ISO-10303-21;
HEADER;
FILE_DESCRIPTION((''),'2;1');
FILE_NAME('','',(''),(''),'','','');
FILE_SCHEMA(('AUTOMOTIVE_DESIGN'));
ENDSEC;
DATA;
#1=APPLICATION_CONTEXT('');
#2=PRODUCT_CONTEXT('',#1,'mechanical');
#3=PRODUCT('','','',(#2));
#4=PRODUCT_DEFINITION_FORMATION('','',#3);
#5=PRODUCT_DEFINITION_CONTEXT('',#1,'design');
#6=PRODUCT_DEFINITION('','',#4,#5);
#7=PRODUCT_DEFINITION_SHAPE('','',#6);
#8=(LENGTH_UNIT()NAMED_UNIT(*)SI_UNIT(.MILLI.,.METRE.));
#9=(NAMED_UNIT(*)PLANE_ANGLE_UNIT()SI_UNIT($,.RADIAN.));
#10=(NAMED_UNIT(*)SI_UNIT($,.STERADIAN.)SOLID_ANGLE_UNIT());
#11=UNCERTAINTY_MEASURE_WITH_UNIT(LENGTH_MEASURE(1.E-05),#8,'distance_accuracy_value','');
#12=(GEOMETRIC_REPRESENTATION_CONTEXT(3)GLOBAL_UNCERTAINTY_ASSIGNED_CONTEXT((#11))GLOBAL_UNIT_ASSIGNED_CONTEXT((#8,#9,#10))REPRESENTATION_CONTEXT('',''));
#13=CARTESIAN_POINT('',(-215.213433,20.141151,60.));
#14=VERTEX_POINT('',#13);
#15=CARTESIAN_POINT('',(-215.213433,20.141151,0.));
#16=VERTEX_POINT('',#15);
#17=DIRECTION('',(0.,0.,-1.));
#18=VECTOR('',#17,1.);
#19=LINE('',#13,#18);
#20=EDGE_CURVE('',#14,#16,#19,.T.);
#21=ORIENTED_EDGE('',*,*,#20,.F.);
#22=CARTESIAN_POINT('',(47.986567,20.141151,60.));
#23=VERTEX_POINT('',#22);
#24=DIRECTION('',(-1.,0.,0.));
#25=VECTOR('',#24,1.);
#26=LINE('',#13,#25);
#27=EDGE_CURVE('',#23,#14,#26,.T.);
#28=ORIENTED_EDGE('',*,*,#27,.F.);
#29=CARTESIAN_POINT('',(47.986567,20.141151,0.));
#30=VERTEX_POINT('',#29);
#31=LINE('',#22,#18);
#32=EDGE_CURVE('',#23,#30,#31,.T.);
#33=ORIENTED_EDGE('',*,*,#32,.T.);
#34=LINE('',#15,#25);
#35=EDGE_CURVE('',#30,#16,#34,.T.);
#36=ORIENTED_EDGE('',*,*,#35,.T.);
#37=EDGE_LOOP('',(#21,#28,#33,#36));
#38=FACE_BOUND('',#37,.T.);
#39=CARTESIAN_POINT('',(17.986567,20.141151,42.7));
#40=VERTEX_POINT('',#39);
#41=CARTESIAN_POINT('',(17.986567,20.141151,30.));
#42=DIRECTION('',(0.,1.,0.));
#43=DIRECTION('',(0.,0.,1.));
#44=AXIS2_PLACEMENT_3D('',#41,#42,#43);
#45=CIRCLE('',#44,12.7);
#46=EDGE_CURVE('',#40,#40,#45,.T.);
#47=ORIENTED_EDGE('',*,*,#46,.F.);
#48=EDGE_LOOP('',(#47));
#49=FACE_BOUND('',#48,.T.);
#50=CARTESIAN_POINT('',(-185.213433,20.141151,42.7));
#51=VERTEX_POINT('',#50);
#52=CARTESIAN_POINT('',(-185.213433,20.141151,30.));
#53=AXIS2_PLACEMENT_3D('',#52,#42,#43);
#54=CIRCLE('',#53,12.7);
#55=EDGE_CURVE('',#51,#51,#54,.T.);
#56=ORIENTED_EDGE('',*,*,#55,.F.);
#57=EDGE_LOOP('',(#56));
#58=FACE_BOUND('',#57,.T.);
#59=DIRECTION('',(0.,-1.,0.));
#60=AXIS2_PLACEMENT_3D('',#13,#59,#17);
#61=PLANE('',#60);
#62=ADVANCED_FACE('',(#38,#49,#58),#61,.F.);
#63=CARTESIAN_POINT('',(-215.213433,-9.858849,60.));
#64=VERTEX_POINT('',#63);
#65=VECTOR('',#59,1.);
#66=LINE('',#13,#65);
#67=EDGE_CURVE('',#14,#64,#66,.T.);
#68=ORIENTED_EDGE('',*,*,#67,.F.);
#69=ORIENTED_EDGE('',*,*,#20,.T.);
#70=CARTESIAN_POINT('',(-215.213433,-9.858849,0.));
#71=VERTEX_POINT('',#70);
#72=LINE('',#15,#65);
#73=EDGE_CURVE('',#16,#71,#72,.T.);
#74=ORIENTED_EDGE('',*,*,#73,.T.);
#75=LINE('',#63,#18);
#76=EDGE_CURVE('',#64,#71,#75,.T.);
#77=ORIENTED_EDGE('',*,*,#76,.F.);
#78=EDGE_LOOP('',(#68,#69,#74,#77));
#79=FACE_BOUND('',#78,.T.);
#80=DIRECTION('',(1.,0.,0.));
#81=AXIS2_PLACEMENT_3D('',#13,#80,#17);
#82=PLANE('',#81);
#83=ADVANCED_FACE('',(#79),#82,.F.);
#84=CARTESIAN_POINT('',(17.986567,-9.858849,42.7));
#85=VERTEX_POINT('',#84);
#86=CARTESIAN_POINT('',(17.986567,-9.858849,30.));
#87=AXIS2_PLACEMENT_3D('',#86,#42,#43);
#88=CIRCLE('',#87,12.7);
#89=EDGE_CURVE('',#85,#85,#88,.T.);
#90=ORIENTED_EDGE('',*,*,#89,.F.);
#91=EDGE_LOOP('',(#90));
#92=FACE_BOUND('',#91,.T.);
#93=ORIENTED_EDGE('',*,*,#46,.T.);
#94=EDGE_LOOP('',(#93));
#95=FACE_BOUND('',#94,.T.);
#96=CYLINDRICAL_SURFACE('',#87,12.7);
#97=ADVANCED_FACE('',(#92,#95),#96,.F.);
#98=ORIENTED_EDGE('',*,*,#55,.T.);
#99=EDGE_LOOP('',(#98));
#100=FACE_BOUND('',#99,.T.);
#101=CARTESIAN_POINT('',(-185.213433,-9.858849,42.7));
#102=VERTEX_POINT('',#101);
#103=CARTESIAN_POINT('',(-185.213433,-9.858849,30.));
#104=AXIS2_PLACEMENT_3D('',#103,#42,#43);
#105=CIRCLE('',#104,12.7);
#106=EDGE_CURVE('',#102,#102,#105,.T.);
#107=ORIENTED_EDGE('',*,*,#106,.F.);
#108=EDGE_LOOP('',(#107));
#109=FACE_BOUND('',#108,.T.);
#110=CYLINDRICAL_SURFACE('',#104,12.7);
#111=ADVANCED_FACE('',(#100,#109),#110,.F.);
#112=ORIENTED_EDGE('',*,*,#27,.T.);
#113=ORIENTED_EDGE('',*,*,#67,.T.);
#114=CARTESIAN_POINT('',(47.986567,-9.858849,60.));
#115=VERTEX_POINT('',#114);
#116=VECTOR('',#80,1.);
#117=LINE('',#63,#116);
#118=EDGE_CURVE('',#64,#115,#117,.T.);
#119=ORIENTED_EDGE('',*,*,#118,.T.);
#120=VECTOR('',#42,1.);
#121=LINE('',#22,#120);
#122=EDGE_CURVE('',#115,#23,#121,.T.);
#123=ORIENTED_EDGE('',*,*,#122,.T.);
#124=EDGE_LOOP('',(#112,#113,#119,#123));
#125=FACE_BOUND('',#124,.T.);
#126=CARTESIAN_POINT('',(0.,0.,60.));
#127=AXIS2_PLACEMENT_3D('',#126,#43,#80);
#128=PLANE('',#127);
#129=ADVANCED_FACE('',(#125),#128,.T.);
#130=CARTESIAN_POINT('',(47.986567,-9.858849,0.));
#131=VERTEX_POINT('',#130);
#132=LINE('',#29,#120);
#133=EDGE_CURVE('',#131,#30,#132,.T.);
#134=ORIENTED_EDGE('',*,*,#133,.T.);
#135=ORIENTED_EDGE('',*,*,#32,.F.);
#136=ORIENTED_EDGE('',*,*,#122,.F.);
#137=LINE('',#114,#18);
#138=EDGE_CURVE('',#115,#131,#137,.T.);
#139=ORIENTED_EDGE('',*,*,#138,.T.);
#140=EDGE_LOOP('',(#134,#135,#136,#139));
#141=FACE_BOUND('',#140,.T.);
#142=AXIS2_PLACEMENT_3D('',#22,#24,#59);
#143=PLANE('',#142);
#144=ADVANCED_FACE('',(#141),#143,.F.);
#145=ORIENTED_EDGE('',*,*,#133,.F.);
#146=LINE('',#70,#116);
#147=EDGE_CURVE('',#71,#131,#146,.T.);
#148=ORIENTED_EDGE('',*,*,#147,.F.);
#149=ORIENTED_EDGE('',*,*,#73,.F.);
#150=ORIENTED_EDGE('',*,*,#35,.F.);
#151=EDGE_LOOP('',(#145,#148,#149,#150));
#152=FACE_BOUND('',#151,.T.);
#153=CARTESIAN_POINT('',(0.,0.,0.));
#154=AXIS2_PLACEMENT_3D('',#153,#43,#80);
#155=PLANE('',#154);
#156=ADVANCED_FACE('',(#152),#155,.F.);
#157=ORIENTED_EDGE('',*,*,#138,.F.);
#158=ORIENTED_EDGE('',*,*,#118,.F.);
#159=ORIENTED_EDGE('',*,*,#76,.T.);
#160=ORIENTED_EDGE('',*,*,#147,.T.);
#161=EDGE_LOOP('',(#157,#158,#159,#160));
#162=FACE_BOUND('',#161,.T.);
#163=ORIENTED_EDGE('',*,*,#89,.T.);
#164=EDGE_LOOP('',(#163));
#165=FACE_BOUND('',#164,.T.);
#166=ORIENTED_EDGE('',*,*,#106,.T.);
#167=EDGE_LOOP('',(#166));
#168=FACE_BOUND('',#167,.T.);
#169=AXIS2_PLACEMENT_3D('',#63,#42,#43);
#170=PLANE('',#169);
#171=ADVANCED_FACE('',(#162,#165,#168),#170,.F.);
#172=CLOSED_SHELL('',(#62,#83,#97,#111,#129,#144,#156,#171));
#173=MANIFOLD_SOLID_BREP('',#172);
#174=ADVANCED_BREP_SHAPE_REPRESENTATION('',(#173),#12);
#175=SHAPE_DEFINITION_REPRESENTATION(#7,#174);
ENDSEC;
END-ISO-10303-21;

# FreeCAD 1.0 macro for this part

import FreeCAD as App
import Part
import Sketcher
Q = App.Units.Quantity


def add_polygon(sketch, points):
    """Adds a closed chain of lines whose ends are joined by coincident constraints."""
    first, n = sketch.GeometryCount, len(points)
    for a, b in zip(points, points[1:] + points[:1]):
        sketch.addGeometry(Part.LineSegment(App.Vector(*a, 0), App.Vector(*b, 0)), False)
    for i in range(n):
        sketch.addConstraint(Sketcher.Constraint("Coincident", first + i, 2, first + (i + 1) % n, 1))

doc = App.newDocument("Part")
params = doc.addObject("Spreadsheet::Sheet", "Params")
for row, (alias, value) in enumerate([
    ("sketch1_height", "30 mm"),
    ("sketch1_width", "263.2 mm"),
    ("pad1_length", "60 mm"),
    ("sketch2_diameter", "25.4 mm"),
], start=1):
    params.set(f"A{row}", alias)
    params.set(f"B{row}", "=" + value)
    params.setAlias(f"B{row}", alias)

body = doc.addObject("PartDesign::Body", "Body")

# Sketch on XY plane
sketch1 = body.newObject("Sketcher::SketchObject", "Sketch")
sketch1.AttachmentSupport = (doc.getObject("XY_Plane"), [""])
sketch1.MapMode = "FlatFace"
add_polygon(sketch1, [(-215, 20), (-215, -10), (48, -10), (48, 20)])  # lines 0-3
sketch1.addConstraint([
    Sketcher.Constraint("Vertical", 0),
    Sketcher.Constraint("Horizontal", 1),
    Sketcher.Constraint("Vertical", 2),
    Sketcher.Constraint("Horizontal", 3),
    Sketcher.Constraint("DistanceY", 0, 2, 0, 1, Q("30 mm")),
    Sketcher.Constraint("DistanceX", 1, 1, 1, 2, Q("263.2 mm")),
    Sketcher.Constraint("DistanceY", 0, 2, -1, 1, Q("9.858849 mm")),
    Sketcher.Constraint("DistanceX", 0, 2, -1, 1, Q("215.213433 mm")),
])
sketch1.setExpression("Constraints[8]", "Params.sketch1_height")
sketch1.setExpression("Constraints[9]", "Params.sketch1_width")
pad1 = body.newObject("PartDesign::Pad", "Pad")
pad1.Profile = sketch1
pad1.setExpression("Length", "Params.pad1_length")

# Sketch on XZ plane
sketch2 = body.newObject("Sketcher::SketchObject", "Sketch001")
sketch2.AttachmentSupport = (doc.getObject("XZ_Plane"), [""])
sketch2.MapMode = "FlatFace"
sketch2.AttachmentOffset = App.Placement(App.Vector(0, 0, -20.141151), App.Rotation())
sketch2.addGeometry([
    Part.Circle(App.Vector(18, 30, 0), App.Vector(0, 0, 1), 13),
    Part.Circle(App.Vector(-185, 30, 0), App.Vector(0, 0, 1), 13),
], False)
sketch2.addConstraint([
    Sketcher.Constraint("Equal", 0, 1),
    Sketcher.Constraint("Horizontal", 0, 3, 1, 3),
    Sketcher.Constraint("Diameter", 0, Q("25.4 mm")),
    Sketcher.Constraint("DistanceY", -1, 1, 0, 3, Q("30 mm")),
    Sketcher.Constraint("DistanceX", 1, 3, 0, 3, Q("203.2 mm")),
    Sketcher.Constraint("DistanceX", -1, 1, 0, 3, Q("17.986567 mm")),
])
sketch2.setExpression("Constraints[2]", "Params.sketch2_diameter")
pocket1 = body.newObject("PartDesign::Pocket", "Pocket")
pocket1.Profile = sketch2
pocket1.Type = "ThroughAll"
pocket1.Reversed = True

doc.recompute()
